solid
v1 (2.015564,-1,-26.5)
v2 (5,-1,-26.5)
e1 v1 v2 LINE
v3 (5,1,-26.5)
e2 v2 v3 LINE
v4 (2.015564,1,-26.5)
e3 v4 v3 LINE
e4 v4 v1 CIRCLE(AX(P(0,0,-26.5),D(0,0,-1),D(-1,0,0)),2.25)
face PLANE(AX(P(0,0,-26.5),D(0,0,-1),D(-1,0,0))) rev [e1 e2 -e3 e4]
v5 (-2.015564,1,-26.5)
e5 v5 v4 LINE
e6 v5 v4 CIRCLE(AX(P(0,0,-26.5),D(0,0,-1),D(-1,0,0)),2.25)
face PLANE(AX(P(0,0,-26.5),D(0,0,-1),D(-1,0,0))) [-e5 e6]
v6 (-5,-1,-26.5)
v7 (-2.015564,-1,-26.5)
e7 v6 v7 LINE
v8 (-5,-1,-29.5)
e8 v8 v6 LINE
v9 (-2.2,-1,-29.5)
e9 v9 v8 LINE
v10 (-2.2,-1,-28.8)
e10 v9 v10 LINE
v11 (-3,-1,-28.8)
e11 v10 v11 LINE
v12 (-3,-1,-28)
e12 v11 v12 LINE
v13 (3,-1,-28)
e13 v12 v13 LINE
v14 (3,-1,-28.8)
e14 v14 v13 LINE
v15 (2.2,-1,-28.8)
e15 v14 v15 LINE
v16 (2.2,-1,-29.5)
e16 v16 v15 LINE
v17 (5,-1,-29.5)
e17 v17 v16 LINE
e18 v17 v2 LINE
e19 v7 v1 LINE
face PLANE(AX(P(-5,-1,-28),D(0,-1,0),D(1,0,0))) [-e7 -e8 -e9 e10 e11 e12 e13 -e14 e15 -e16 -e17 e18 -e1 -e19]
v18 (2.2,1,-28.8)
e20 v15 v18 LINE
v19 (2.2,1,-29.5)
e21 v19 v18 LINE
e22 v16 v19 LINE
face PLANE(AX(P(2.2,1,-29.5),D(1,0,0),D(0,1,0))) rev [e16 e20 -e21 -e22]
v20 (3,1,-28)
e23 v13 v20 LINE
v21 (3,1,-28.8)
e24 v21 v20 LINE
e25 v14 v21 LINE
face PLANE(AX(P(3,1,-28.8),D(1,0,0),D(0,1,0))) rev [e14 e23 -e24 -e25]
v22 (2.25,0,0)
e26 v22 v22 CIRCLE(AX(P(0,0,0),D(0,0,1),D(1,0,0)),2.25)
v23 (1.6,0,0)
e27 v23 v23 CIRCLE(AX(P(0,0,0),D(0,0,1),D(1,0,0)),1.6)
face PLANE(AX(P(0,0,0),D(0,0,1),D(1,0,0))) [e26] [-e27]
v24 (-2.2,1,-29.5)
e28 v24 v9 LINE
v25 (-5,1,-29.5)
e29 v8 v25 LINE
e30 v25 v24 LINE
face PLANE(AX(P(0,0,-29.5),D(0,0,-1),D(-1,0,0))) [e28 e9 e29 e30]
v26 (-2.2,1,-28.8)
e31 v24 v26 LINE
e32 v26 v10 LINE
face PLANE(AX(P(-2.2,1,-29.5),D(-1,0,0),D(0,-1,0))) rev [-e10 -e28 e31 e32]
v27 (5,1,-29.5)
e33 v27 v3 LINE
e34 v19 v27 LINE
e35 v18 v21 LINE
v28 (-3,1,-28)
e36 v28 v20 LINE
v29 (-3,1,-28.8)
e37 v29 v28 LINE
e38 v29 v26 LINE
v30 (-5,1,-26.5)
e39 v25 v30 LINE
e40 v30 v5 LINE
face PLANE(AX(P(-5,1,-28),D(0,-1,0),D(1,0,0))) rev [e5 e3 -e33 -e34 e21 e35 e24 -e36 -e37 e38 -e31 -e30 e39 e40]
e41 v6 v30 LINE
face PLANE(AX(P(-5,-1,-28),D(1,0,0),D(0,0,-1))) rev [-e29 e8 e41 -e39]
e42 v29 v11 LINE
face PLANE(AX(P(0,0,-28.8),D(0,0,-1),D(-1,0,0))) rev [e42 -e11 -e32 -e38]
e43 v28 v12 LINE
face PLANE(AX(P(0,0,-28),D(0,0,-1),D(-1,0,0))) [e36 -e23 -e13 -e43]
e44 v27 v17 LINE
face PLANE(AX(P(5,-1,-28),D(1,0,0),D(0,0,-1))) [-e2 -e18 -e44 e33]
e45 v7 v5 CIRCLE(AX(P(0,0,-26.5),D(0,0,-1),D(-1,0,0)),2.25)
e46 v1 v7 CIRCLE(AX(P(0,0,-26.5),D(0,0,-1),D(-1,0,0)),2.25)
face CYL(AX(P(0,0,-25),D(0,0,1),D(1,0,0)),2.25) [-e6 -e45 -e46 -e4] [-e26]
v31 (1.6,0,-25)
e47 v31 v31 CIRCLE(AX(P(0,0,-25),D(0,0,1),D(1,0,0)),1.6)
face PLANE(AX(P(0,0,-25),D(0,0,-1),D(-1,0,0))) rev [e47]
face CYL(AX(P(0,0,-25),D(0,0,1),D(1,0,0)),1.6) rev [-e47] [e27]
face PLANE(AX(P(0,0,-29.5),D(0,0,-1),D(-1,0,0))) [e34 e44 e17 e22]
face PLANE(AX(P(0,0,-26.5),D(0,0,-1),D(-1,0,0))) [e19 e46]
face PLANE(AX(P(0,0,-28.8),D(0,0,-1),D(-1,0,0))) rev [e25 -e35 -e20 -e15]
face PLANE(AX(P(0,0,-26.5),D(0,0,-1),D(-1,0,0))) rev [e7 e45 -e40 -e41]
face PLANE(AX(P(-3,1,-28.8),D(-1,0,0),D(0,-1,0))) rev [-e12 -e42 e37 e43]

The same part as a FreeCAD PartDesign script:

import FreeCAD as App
import Part
import Sketcher

V = App.Vector
Q = App.Units.Quantity

doc = App.newDocument("Part")
body = doc.addObject("PartDesign::Body", "Body")

sketch1 = body.newObject("Sketcher::SketchObject", "Sketch")
sketch1.AttachmentSupport = (doc.getObject("XY_Plane"), [""])
sketch1.MapMode = "FlatFace"
sketch1.addGeometry(Part.Circle(V(0, 0, 0), V(0, 0, 1), 2.2), False)
sketch1.addGeometry(Part.Circle(V(0, 0, 0), V(0, 0, 1), 1.6), False)
sketch1.addConstraint(Sketcher.Constraint("Coincident", 0, 3, -1, 1))
sketch1.addConstraint(Sketcher.Constraint("Coincident", 1, 3, -1, 1))
sketch1.addConstraint(Sketcher.Constraint("Diameter", 0, Q("4.5 mm")))
sketch1.addConstraint(Sketcher.Constraint("Diameter", 1, Q("3.2 mm")))
pad1 = body.newObject("PartDesign::Pad", "Pad")
pad1.Profile = sketch1
pad1.Length = 25
pad1.Reversed = True

sketch2 = body.newObject("Sketcher::SketchObject", "Sketch001")
sketch2.AttachmentSupport = (doc.getObject("XY_Plane"), [""])
sketch2.MapMode = "FlatFace"
sketch2.AttachmentOffset = App.Placement(V(0, 0, -25), App.Rotation())
sketch2.addGeometry(Part.Circle(V(0, 0, 0), V(0, 0, 1), 2.2), False)
sketch2.addConstraint(Sketcher.Constraint("Coincident", 0, 3, -1, 1))
sketch2.addConstraint(Sketcher.Constraint("Diameter", 0, Q("4.5 mm")))
pad2 = body.newObject("PartDesign::Pad", "Pad001")
pad2.Profile = sketch2
pad2.Length = 1.5
pad2.Reversed = True

sketch3 = body.newObject("Sketcher::SketchObject", "Sketch002")
sketch3.AttachmentSupport = (doc.getObject("XY_Plane"), [""])
sketch3.MapMode = "FlatFace"
sketch3.AttachmentOffset = App.Placement(V(0, 0, -26.5), App.Rotation())
sketch3.addGeometry(Part.LineSegment(V(5, 1, 0), V(5, -1, 0)), False)
sketch3.addGeometry(Part.LineSegment(V(5, -1, 0), V(-5, -1, 0)), False)
sketch3.addGeometry(Part.LineSegment(V(-5, -1, 0), V(-5, 1, 0)), False)
sketch3.addGeometry(Part.LineSegment(V(-5, 1, 0), V(5, 1, 0)), False)
sketch3.addConstraint(Sketcher.Constraint("Coincident", 0, 2, 1, 1))
sketch3.addConstraint(Sketcher.Constraint("Coincident", 1, 2, 2, 1))
sketch3.addConstraint(Sketcher.Constraint("Coincident", 2, 2, 3, 1))
sketch3.addConstraint(Sketcher.Constraint("Coincident", 3, 2, 0, 1))
sketch3.addConstraint(Sketcher.Constraint("Vertical", 0))
sketch3.addConstraint(Sketcher.Constraint("Horizontal", 1))
sketch3.addConstraint(Sketcher.Constraint("Vertical", 2))
sketch3.addConstraint(Sketcher.Constraint("Horizontal", 3))
sketch3.addConstraint(Sketcher.Constraint("Symmetric", 0, 2, 2, 2, -1, 1))
sketch3.addConstraint(Sketcher.Constraint("DistanceX", 1, 2, 1, 1, Q("10 mm")))
sketch3.addConstraint(Sketcher.Constraint("DistanceY", 0, 2, 0, 1, Q("2 mm")))
pad3 = body.newObject("PartDesign::Pad", "Pad002")
pad3.Profile = sketch3
pad3.Length = 1.5
pad3.Reversed = True

sketch4 = body.newObject("Sketcher::SketchObject", "Sketch003")
sketch4.AttachmentSupport = (doc.getObject("XY_Plane"), [""])
sketch4.MapMode = "FlatFace"
sketch4.AttachmentOffset = App.Placement(V(0, 0, -28), App.Rotation())
sketch4.addGeometry(Part.LineSegment(V(5, 1, 0), V(5, -1, 0)), False)
sketch4.addGeometry(Part.LineSegment(V(5, -1, 0), V(3, -1, 0)), False)
sketch4.addGeometry(Part.LineSegment(V(3, -1, 0), V(3, 1, 0)), False)
sketch4.addGeometry(Part.LineSegment(V(3, 1, 0), V(5, 1, 0)), False)
sketch4.addGeometry(Part.LineSegment(V(-3, 1, 0), V(-3, -1, 0)), False)
sketch4.addGeometry(Part.LineSegment(V(-3, -1, 0), V(-5, -1, 0)), False)
sketch4.addGeometry(Part.LineSegment(V(-5, -1, 0), V(-5, 1, 0)), False)
sketch4.addGeometry(Part.LineSegment(V(-5, 1, 0), V(-3, 1, 0)), False)
sketch4.addConstraint(Sketcher.Constraint("Coincident", 0, 2, 1, 1))
sketch4.addConstraint(Sketcher.Constraint("Coincident", 1, 2, 2, 1))
sketch4.addConstraint(Sketcher.Constraint("Coincident", 2, 2, 3, 1))
sketch4.addConstraint(Sketcher.Constraint("Coincident", 3, 2, 0, 1))
sketch4.addConstraint(Sketcher.Constraint("Coincident", 4, 2, 5, 1))
sketch4.addConstraint(Sketcher.Constraint("Coincident", 5, 2, 6, 1))
sketch4.addConstraint(Sketcher.Constraint("Coincident", 6, 2, 7, 1))
sketch4.addConstraint(Sketcher.Constraint("Coincident", 7, 2, 4, 1))
sketch4.addConstraint(Sketcher.Constraint("Vertical", 0))
sketch4.addConstraint(Sketcher.Constraint("Horizontal", 1))
sketch4.addConstraint(Sketcher.Constraint("Vertical", 2))
sketch4.addConstraint(Sketcher.Constraint("Horizontal", 3))
sketch4.addConstraint(Sketcher.Constraint("Vertical", 4))
sketch4.addConstraint(Sketcher.Constraint("Horizontal", 5))
sketch4.addConstraint(Sketcher.Constraint("Vertical", 6))
sketch4.addConstraint(Sketcher.Constraint("Horizontal", 7))
sketch4.addConstraint(Sketcher.Constraint("Symmetric", 2, 2, 4, 2, -1, 1))
sketch4.addConstraint(Sketcher.Constraint("Symmetric", 0, 2, 6, 2, -1, 1))
sketch4.addConstraint(Sketcher.Constraint("Horizontal", 1, 2, 4, 2))
sketch4.addConstraint(Sketcher.Constraint("Equal", 7, 0))
sketch4.addConstraint(Sketcher.Constraint("DistanceX", 1, 2, 1, 1, Q("2 mm")))
sketch4.addConstraint(Sketcher.Constraint("DistanceX", -1, 1, 0, 2, Q("5 mm")))
pad4 = body.newObject("PartDesign::Pad", "Pad003")
pad4.Profile = sketch4
pad4.Length = 0.8
pad4.Reversed = True

sketch5 = body.newObject("Sketcher::SketchObject", "Sketch004")
sketch5.AttachmentSupport = (doc.getObject("XY_Plane"), [""])
sketch5.MapMode = "FlatFace"
sketch5.AttachmentOffset = App.Placement(V(0, 0, -28.8), App.Rotation())
sketch5.addGeometry(Part.LineSegment(V(5, 1, 0), V(5, -1, 0)), False)
sketch5.addGeometry(Part.LineSegment(V(5, -1, 0), V(2.2, -1, 0)), False)
sketch5.addGeometry(Part.LineSegment(V(2.2, -1, 0), V(2.2, 1, 0)), False)
sketch5.addGeometry(Part.LineSegment(V(2.2, 1, 0), V(5, 1, 0)), False)
sketch5.addGeometry(Part.LineSegment(V(-2.2, 1, 0), V(-2.2, -1, 0)), False)
sketch5.addGeometry(Part.LineSegment(V(-2.2, -1, 0), V(-5, -1, 0)), False)
sketch5.addGeometry(Part.LineSegment(V(-5, -1, 0), V(-5, 1, 0)), False)
sketch5.addGeometry(Part.LineSegment(V(-5, 1, 0), V(-2.2, 1, 0)), False)
sketch5.addConstraint(Sketcher.Constraint("Coincident", 0, 2, 1, 1))
sketch5.addConstraint(Sketcher.Constraint("Coincident", 1, 2, 2, 1))
sketch5.addConstraint(Sketcher.Constraint("Coincident", 2, 2, 3, 1))
sketch5.addConstraint(Sketcher.Constraint("Coincident", 3, 2, 0, 1))
sketch5.addConstraint(Sketcher.Constraint("Coincident", 4, 2, 5, 1))
sketch5.addConstraint(Sketcher.Constraint("Coincident", 5, 2, 6, 1))
sketch5.addConstraint(Sketcher.Constraint("Coincident", 6, 2, 7, 1))
sketch5.addConstraint(Sketcher.Constraint("Coincident", 7, 2, 4, 1))
sketch5.addConstraint(Sketcher.Constraint("Vertical", 0))
sketch5.addConstraint(Sketcher.Constraint("Horizontal", 1))
sketch5.addConstraint(Sketcher.Constraint("Vertical", 2))
sketch5.addConstraint(Sketcher.Constraint("Horizontal", 3))
sketch5.addConstraint(Sketcher.Constraint("Vertical", 4))
sketch5.addConstraint(Sketcher.Constraint("Horizontal", 5))
sketch5.addConstraint(Sketcher.Constraint("Vertical", 6))
sketch5.addConstraint(Sketcher.Constraint("Horizontal", 7))
sketch5.addConstraint(Sketcher.Constraint("Symmetric", 2, 2, 4, 2, -1, 1))
sketch5.addConstraint(Sketcher.Constraint("Symmetric", 0, 2, 6, 2, -1, 1))
sketch5.addConstraint(Sketcher.Constraint("Horizontal", 1, 2, 4, 2))
sketch5.addConstraint(Sketcher.Constraint("DistanceY", 0, 2, 0, 1, Q("2 mm")))
sketch5.addConstraint(Sketcher.Constraint("DistanceX", 1, 2, 1, 1, Q("2.8 mm")))
sketch5.addConstraint(Sketcher.Constraint("DistanceX", -1, 1, 0, 2, Q("5 mm")))
pad5 = body.newObject("PartDesign::Pad", "Pad004")
pad5.Profile = sketch5
pad5.Length = 0.7
pad5.Reversed = True

doc.recompute()
